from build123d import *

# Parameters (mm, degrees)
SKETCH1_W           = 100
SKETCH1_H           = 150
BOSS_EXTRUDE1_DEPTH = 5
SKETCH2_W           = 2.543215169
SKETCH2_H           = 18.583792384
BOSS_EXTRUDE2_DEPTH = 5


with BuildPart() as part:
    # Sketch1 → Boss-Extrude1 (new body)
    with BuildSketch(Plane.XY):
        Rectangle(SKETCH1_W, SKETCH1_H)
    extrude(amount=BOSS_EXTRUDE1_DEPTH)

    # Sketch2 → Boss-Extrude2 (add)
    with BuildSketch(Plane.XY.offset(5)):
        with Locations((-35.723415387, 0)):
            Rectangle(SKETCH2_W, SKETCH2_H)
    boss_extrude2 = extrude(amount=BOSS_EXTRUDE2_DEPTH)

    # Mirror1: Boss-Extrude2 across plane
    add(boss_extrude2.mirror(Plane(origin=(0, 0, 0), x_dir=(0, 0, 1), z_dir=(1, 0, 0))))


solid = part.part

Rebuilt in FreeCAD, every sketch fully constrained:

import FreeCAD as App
import Part
import Sketcher

V = App.Vector
Q = App.Units.Quantity


def add_polygon(sketch, points):
    """Adds a closed chain of lines whose ends are joined by coincident constraints."""
    first, n = sketch.GeometryCount, len(points)
    for a, b in zip(points, points[1:] + points[:1]):
        sketch.addGeometry(Part.LineSegment(App.Vector(*a, 0), App.Vector(*b, 0)), False)
    for i in range(n):
        sketch.addConstraint(Sketcher.Constraint("Coincident", first + i, 2, first + (i + 1) % n, 1))

doc = App.newDocument("Part")
body = doc.addObject("PartDesign::Body", "Body")

# Sketch on XY plane
sketch1 = body.newObject("Sketcher::SketchObject", "Sketch")
sketch1.AttachmentSupport = (doc.getObject("XY_Plane"), [""])
sketch1.MapMode = "FlatFace"
add_polygon(sketch1, [(-50, 75), (-50, -75), (50, -75), (50, 75)])  # lines 0-3
sketch1.addConstraint(Sketcher.Constraint("Vertical", 0))
sketch1.addConstraint(Sketcher.Constraint("Horizontal", 1))
sketch1.addConstraint(Sketcher.Constraint("Vertical", 2))
sketch1.addConstraint(Sketcher.Constraint("Horizontal", 3))
sketch1.addConstraint(Sketcher.Constraint("Symmetric", 0, 2, 2, 2, -1, 1))
sketch1.addConstraint(Sketcher.Constraint("DistanceX", 1, 1, 1, 2, Q("100 mm")))
sketch1.addConstraint(Sketcher.Constraint("DistanceY", 0, 2, 0, 1, Q("150 mm")))
pad1 = body.newObject("PartDesign::Pad", "Pad")
pad1.Profile = sketch1
pad1.Length = 5

# Sketch on XY plane
sketch2 = body.newObject("Sketcher::SketchObject", "Sketch001")
sketch2.AttachmentSupport = (doc.getObject("XY_Plane"), [""])
sketch2.MapMode = "FlatFace"
sketch2.AttachmentOffset = App.Placement(V(0, 0, 5), App.Rotation())
add_polygon(sketch2, [(-37, 9.3), (-37, -9.3), (-34.5, -9.3), (-34.5, 9.3)])  # lines 0-3
sketch2.addConstraint(Sketcher.Constraint("Vertical", 0))
sketch2.addConstraint(Sketcher.Constraint("Horizontal", 1))
sketch2.addConstraint(Sketcher.Constraint("Vertical", 2))
sketch2.addConstraint(Sketcher.Constraint("Horizontal", 3))
sketch2.addConstraint(Sketcher.Constraint("DistanceX", 1, 1, 1, 2, Q("2.543215 mm")))
sketch2.addConstraint(Sketcher.Constraint("DistanceY", 0, 2, 0, 1, Q("18.583792 mm")))
sketch2.addConstraint(Sketcher.Constraint("DistanceX", 0, 2, -1, 1, Q("36.995023 mm")))
sketch2.addConstraint(Sketcher.Constraint("DistanceY", 0, 2, -1, 1, Q("9.291896 mm")))
pad2 = body.newObject("PartDesign::Pad", "Pad001")
pad2.Profile = sketch2
pad2.Length = 5
doc.recompute()

mirrored = body.newObject("PartDesign::Mirrored", "Mirrored")
mirrored.Originals = [pad2]
mirrored.MirrorPlane = (doc.getObject("YZ_Plane"), [""])
body.Tip = mirrored

doc.recompute()
